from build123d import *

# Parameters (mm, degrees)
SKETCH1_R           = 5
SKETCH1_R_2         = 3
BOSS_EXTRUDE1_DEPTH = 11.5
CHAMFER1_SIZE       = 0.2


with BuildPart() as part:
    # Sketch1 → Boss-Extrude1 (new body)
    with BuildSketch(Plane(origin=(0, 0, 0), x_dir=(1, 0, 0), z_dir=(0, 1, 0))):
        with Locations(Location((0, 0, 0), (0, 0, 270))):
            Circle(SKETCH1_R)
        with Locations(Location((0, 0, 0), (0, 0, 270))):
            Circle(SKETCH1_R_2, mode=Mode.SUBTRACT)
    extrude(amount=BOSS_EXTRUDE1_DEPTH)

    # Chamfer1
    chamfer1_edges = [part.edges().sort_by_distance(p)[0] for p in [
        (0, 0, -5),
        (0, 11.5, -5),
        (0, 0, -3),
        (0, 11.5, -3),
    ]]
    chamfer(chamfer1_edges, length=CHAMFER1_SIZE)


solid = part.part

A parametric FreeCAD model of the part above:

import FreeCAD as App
import Part
import Sketcher
Q = App.Units.Quantity


def edges_at(feature, points):
    """Names of the edges that pass closest to the given points."""
    edges = feature.Shape.Edges
    near = lambda p: min(range(len(edges)), key=lambda i: edges[i].distToShape(Part.Vertex(*p))[0])
    return sorted({f"Edge{near(p) + 1}" for p in points})

doc = App.newDocument("Part")
body = doc.addObject("PartDesign::Body", "Body")

# Sketch on XZ plane
sketch1 = body.newObject("Sketcher::SketchObject", "Sketch")
sketch1.AttachmentSupport = (doc.getObject("XZ_Plane"), [""])
sketch1.MapMode = "FlatFace"
sketch1.addGeometry(Part.Circle(App.Vector(0, 0, 0), App.Vector(0, 0, 1), 5), False)
sketch1.addGeometry(Part.Circle(App.Vector(0, 0, 0), App.Vector(0, 0, 1), 3), False)
sketch1.addConstraint(Sketcher.Constraint("Coincident", 0, 3, -1, 1))
sketch1.addConstraint(Sketcher.Constraint("Coincident", 1, 3, -1, 1))
sketch1.addConstraint(Sketcher.Constraint("Diameter", 0, Q("10 mm")))
sketch1.addConstraint(Sketcher.Constraint("Diameter", 1, Q("6 mm")))
pad1 = body.newObject("PartDesign::Pad", "Pad")
pad1.Profile = sketch1
pad1.Length = 11.5
pad1.Reversed = True
doc.recompute()

chamfer = body.newObject("PartDesign::Chamfer", "Chamfer")
chamfer.Base = (pad1, edges_at(pad1, [
    (0, 0, -5),
    (0, 11.5, -5),
    (0, 0, -3),
    (0, 11.5, -3),
]))
chamfer.Size = 0.2

doc.recompute()
